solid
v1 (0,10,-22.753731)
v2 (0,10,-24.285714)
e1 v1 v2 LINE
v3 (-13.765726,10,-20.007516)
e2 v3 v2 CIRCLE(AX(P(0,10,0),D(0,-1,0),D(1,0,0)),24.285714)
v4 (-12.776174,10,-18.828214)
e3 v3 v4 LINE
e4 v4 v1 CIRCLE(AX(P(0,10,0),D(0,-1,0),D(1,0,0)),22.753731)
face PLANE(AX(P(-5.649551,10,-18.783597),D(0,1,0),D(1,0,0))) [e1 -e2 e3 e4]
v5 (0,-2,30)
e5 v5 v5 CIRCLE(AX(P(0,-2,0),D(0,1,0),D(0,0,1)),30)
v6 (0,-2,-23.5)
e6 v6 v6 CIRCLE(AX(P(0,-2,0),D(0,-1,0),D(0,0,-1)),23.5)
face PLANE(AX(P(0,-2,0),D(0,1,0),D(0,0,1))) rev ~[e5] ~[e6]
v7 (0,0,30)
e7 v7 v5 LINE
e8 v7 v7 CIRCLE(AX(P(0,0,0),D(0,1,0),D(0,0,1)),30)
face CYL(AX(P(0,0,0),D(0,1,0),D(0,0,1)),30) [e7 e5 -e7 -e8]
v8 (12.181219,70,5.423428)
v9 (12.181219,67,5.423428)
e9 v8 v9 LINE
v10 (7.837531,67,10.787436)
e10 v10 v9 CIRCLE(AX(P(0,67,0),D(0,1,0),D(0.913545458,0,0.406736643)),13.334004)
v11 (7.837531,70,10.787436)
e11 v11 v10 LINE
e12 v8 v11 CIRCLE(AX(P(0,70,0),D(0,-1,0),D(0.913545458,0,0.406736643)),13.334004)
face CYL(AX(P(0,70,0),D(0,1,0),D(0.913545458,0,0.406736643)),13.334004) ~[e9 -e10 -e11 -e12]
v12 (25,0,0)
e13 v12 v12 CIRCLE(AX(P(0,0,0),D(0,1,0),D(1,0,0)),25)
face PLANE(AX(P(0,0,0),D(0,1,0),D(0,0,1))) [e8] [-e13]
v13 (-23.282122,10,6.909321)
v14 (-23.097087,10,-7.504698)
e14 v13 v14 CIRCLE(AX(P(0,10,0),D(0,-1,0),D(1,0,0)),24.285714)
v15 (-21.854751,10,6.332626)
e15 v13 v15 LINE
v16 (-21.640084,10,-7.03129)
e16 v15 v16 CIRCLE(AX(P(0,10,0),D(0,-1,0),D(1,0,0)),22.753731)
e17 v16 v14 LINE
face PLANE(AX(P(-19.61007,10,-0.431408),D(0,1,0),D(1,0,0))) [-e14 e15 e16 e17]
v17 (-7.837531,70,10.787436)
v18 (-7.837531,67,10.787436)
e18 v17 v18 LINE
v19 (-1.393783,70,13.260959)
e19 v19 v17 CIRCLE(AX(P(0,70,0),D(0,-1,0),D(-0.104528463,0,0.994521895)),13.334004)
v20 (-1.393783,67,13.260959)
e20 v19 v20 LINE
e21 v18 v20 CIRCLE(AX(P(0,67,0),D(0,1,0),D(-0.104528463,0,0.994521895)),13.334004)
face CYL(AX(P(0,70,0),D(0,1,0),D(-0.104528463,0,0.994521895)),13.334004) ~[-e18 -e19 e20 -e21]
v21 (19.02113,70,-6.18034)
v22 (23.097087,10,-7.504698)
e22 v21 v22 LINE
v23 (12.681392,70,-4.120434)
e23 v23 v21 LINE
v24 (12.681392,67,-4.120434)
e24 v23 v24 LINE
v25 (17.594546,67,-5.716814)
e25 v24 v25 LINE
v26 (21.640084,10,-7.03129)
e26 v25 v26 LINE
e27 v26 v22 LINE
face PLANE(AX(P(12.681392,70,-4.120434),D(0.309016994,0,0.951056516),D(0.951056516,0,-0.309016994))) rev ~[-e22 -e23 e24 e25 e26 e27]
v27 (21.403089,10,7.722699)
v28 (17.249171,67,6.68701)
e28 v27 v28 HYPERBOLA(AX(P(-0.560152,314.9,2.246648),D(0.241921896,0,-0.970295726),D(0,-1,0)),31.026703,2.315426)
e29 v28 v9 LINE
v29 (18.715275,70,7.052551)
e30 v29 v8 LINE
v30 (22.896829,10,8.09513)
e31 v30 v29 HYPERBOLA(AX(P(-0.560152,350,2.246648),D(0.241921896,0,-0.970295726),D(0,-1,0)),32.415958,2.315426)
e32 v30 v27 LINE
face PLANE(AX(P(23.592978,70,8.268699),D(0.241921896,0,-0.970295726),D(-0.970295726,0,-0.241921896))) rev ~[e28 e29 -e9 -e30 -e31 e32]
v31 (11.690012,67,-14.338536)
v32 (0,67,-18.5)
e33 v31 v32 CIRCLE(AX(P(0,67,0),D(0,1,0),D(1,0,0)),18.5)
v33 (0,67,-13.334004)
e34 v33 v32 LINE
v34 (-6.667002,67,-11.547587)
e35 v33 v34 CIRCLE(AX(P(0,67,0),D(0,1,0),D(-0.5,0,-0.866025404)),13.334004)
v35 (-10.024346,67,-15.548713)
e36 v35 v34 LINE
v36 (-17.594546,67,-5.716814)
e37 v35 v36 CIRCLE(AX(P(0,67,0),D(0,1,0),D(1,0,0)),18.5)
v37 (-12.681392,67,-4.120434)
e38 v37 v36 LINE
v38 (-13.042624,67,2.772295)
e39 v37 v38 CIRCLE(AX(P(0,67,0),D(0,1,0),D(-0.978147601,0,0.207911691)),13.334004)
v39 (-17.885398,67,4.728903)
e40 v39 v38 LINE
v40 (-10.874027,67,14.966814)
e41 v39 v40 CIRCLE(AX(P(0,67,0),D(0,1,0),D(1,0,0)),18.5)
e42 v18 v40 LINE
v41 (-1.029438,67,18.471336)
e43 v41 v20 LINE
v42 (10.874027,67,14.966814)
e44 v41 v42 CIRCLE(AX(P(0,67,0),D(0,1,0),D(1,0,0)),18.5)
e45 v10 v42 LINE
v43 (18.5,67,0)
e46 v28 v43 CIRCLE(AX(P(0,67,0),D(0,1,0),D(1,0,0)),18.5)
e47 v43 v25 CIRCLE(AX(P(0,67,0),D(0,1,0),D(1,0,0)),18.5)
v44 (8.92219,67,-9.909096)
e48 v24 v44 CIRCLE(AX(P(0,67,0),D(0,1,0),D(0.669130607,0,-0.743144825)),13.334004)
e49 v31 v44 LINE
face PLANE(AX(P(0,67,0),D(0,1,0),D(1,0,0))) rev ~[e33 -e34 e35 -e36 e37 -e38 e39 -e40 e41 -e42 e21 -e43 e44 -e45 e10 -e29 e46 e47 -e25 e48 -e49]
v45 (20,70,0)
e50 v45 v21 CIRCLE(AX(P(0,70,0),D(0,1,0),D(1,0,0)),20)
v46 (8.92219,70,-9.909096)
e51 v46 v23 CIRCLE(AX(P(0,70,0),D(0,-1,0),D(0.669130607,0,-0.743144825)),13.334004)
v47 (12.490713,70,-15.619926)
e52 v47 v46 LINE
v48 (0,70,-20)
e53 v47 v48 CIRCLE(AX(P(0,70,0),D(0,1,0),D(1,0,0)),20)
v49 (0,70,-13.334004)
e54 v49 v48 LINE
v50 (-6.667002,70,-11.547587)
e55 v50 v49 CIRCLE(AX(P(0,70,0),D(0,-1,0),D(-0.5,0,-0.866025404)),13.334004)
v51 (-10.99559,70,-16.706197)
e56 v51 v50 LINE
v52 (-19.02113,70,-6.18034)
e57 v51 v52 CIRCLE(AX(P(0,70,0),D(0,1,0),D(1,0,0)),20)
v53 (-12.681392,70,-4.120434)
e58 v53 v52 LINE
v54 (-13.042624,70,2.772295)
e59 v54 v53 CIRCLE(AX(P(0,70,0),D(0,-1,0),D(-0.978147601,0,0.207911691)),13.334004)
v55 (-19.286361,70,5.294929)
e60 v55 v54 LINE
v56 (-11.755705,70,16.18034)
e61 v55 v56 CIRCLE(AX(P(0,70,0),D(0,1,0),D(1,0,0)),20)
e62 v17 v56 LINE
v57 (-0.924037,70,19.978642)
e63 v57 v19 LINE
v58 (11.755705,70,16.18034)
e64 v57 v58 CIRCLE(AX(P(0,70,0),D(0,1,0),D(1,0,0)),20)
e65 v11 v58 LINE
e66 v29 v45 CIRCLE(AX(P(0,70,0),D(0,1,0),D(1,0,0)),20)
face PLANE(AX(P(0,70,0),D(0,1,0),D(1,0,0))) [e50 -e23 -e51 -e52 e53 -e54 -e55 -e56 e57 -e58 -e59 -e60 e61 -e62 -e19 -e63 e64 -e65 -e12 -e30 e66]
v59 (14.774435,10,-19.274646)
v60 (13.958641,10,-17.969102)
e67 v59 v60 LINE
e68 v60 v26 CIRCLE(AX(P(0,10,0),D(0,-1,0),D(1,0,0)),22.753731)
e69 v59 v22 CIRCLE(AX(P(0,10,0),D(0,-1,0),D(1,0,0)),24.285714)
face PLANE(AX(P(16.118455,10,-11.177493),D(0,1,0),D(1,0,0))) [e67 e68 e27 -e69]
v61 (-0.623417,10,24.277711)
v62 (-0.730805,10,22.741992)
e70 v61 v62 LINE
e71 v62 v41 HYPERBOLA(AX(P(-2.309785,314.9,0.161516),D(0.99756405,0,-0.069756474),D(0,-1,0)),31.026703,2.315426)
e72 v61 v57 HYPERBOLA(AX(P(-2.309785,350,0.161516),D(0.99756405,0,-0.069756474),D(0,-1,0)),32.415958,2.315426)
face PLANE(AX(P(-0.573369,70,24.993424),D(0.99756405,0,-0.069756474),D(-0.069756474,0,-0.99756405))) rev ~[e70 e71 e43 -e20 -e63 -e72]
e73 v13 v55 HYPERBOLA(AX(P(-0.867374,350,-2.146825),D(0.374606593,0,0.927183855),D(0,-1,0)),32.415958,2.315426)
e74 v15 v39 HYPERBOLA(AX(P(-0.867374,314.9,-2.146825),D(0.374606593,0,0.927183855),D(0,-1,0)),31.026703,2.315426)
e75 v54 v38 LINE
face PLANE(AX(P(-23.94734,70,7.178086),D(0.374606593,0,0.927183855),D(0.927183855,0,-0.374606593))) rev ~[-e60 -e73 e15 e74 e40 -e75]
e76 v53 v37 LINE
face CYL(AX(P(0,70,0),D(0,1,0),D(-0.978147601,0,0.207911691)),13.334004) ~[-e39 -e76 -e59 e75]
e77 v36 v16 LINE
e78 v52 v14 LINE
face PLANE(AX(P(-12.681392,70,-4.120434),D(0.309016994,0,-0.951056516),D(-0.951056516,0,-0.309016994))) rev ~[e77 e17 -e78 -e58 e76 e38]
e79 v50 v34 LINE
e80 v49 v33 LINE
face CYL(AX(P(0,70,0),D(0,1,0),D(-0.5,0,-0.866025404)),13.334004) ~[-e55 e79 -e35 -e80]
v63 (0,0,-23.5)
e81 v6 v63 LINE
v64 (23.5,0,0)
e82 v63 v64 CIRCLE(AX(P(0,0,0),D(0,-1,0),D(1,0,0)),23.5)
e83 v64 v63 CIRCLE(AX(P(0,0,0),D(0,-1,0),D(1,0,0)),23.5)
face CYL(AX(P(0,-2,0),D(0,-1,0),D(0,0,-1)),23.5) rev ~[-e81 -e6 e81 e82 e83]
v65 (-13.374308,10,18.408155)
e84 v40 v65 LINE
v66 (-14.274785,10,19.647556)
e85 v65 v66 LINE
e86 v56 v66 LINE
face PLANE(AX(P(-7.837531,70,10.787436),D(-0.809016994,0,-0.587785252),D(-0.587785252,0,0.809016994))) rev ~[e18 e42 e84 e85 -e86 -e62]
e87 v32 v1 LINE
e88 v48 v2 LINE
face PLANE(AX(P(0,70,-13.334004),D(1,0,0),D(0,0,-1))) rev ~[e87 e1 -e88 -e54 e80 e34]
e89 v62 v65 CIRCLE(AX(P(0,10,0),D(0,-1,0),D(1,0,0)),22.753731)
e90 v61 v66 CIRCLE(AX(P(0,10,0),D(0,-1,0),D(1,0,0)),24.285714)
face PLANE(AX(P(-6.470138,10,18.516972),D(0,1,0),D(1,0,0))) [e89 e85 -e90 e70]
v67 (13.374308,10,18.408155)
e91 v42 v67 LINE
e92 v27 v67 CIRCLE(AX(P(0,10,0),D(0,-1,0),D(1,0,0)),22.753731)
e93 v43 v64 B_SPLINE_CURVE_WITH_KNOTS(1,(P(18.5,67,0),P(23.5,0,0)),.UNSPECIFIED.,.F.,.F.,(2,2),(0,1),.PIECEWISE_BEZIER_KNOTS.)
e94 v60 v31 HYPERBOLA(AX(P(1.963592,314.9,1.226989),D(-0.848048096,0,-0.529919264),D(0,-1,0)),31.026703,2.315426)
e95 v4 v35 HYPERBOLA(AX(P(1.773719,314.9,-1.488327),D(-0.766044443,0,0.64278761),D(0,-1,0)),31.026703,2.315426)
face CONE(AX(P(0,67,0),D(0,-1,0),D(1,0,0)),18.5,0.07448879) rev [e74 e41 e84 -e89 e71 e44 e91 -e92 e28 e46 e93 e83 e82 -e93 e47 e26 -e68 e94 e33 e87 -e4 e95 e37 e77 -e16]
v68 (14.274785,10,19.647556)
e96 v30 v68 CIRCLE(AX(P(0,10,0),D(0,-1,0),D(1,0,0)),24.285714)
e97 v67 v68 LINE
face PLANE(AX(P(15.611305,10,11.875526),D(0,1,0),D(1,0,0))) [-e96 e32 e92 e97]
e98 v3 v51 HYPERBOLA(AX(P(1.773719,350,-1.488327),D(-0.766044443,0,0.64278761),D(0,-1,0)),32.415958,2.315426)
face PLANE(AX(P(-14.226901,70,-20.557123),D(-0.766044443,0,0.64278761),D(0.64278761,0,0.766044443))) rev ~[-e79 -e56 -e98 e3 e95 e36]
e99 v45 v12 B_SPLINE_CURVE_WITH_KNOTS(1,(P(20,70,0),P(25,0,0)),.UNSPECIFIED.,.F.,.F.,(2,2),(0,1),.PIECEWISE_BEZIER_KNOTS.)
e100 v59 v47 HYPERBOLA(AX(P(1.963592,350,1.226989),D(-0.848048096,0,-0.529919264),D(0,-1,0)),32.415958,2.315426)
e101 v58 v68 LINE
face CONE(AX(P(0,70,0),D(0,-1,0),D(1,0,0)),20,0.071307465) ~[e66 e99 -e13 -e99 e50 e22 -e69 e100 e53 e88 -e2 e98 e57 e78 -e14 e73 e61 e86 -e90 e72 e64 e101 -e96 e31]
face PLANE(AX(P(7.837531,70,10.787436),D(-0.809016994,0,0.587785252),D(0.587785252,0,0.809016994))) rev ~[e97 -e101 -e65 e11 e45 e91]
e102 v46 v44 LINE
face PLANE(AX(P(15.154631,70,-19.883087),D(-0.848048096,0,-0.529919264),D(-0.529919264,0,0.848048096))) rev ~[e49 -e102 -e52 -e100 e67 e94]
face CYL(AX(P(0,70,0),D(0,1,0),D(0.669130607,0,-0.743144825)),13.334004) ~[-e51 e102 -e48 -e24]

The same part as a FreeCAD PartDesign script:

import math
import FreeCAD as App
import Part
import Sketcher
from FreeCAD import Vector
Q = App.Units.Quantity

doc = App.newDocument("Part")
body = doc.addObject("PartDesign::Body", "Body")

sketch1 = body.newObject("Sketcher::SketchObject", "Sketch")
sketch1.AttachmentSupport = (doc.getObject("XZ_Plane"), [""])
sketch1.MapMode = "FlatFace"
sketch1.AttachmentOffset = App.Placement(Vector(0, 0, -70), App.Rotation())
sketch1.addGeometry(Part.Circle(Vector(0, 0, 0), Vector(0, 0, 1), 20), False)
sketch1.addConstraint(Sketcher.Constraint("Coincident", 0, 3, -1, 1))
sketch1.addConstraint(Sketcher.Constraint("Diameter", 0, 40.0))

sketch2 = body.newObject("Sketcher::SketchObject", "Sketch001")
sketch2.AttachmentSupport = (doc.getObject("XZ_Plane"), [""])
sketch2.MapMode = "FlatFace"
sketch2.addGeometry(Part.Circle(Vector(0, 0, 0), Vector(0, 0, 1), 25), False)
sketch2.addConstraint(Sketcher.Constraint("Coincident", 0, 3, -1, 1))
sketch2.addConstraint(Sketcher.Constraint("Diameter", 0, 50.0))

additiveloft = body.newObject("PartDesign::AdditiveLoft", "AdditiveLoft")
additiveloft.Profile = sketch1
additiveloft.Sections = [sketch2]

sketch3 = body.newObject("Sketcher::SketchObject", "Sketch002")
sketch3.AttachmentSupport = (doc.getObject("XZ_Plane"), [""])
sketch3.MapMode = "FlatFace"
sketch3.AttachmentOffset = App.Placement(Vector(0, 0, -67), App.Rotation())
sketch3.addGeometry(Part.Circle(Vector(0, 0, 0), Vector(0, 0, 1), 18.5), False)
sketch3.addConstraint(Sketcher.Constraint("Coincident", 0, 3, -1, 1))
sketch3.addConstraint(Sketcher.Constraint("Diameter", 0, 37.0))

sketch4 = body.newObject("Sketcher::SketchObject", "Sketch003")
sketch4.AttachmentSupport = (doc.getObject("XZ_Plane"), [""])
sketch4.MapMode = "FlatFace"
sketch4.addGeometry(Part.Circle(Vector(0, 0, 0), Vector(0, 0, 1), 23.5), False)
sketch4.addConstraint(Sketcher.Constraint("Coincident", 0, 3, -1, 1))
sketch4.addConstraint(Sketcher.Constraint("Diameter", 0, 47.0))

subtractiveloft = body.newObject("PartDesign::SubtractiveLoft", "SubtractiveLoft")
subtractiveloft.Profile = sketch3
subtractiveloft.Sections = [sketch4]

sketch5 = body.newObject("Sketcher::SketchObject", "Sketch004")
sketch5.AttachmentSupport = (doc.getObject("XZ_Plane"), [""])
sketch5.MapMode = "FlatFace"
sketch5.addGeometry(Part.Circle(Vector(0, 0, 0), Vector(0, 0, 1), 30), False)
sketch5.addConstraint(Sketcher.Constraint("Coincident", 0, 3, -1, 1))
sketch5.addConstraint(Sketcher.Constraint("Diameter", 0, 60.0))
pad1 = body.newObject("PartDesign::Pad", "Pad")
pad1.Profile = sketch5
pad1.Length = 2

sketch6 = body.newObject("Sketcher::SketchObject", "Sketch005")
sketch6.AttachmentSupport = (doc.getObject("XZ_Plane"), [""])
sketch6.MapMode = "FlatFace"
sketch6.AttachmentOffset = App.Placement(Vector(0, 0, 2), App.Rotation())
sketch6.addGeometry(Part.Circle(Vector(0, 0, 0), Vector(0, 0, 1), 23.5), False)
sketch6.addConstraint(Sketcher.Constraint("Coincident", 0, 3, -1, 1))
sketch6.addConstraint(Sketcher.Constraint("Diameter", 0, 47.0))
pocket1 = body.newObject("PartDesign::Pocket", "Pocket")
pocket1.Profile = sketch6
pocket1.Length = 2

sketch7 = body.newObject("Sketcher::SketchObject", "Sketch006")
sketch7.AttachmentSupport = (doc.getObject("XZ_Plane"), [""])
sketch7.MapMode = "FlatFace"
sketch7.AttachmentOffset = App.Placement(Vector(0, 0, -70), App.Rotation())
sketch7.addGeometry(Part.LineSegment(Vector(0, -13.334004, 0), Vector(0, -25, 0)), False)
sketch7.addGeometry(Part.ArcOfCircle(Part.Circle(Vector(0, 0, 0), Vector(0, 0, 1), 25), math.radians(-124.68582), math.radians(-90)), False)
sketch7.addGeometry(Part.LineSegment(Vector(-14.226901, -20.557123, 0), Vector(-6.667002, -11.547587, 0)), False)
sketch7.addGeometry(Part.ArcOfCircle(Part.Circle(Vector(0, 0, 0), Vector(0, 0, 1), 13.334004), math.radians(-120), math.radians(-90)), False)
sketch7.addGeometry(Part.LineSegment(Vector(12.681392, -4.120434, 0), Vector(23.776413, -7.725425, 0)), False)
sketch7.addGeometry(Part.ArcOfCircle(Part.Circle(Vector(0, 0, 0), Vector(0, 0, 1), 25), math.radians(-52.68582), math.radians(-18)), False)
sketch7.addGeometry(Part.LineSegment(Vector(15.154631, -19.883087, 0), Vector(8.92219, -9.909096, 0)), False)
sketch7.addGeometry(Part.ArcOfCircle(Part.Circle(Vector(0, 0, 0), Vector(0, 0, 1), 13.334004), math.radians(-48), math.radians(-18)), False)
sketch7.addGeometry(Part.LineSegment(Vector(7.837531, 10.787436, 0), Vector(14.694631, 20.225425, 0)), False)
sketch7.addGeometry(Part.ArcOfCircle(Part.Circle(Vector(0, 0, 0), Vector(0, 0, 1), 25), math.radians(19.31418), math.radians(54)), False)
sketch7.addGeometry(Part.LineSegment(Vector(23.592978, 8.268699, 0), Vector(12.181219, 5.423428, 0)), False)
sketch7.addGeometry(Part.ArcOfCircle(Part.Circle(Vector(0, 0, 0), Vector(0, 0, 1), 13.334004), math.radians(24), math.radians(54)), False)
sketch7.addGeometry(Part.LineSegment(Vector(-7.837531, 10.787436, 0), Vector(-14.694631, 20.225425, 0)), False)
sketch7.addGeometry(Part.ArcOfCircle(Part.Circle(Vector(0, 0, 0), Vector(0, 0, 1), 25), math.radians(91.31418), math.radians(126)), False)
sketch7.addGeometry(Part.LineSegment(Vector(-0.573369, 24.993424, 0), Vector(-1.393783, 13.260959, 0)), False)
sketch7.addGeometry(Part.ArcOfCircle(Part.Circle(Vector(0, 0, 0), Vector(0, 0, 1), 13.334004), math.radians(96), math.radians(126)), False)
sketch7.addGeometry(Part.LineSegment(Vector(-12.681392, -4.120434, 0), Vector(-23.776413, -7.725425, 0)), False)
sketch7.addGeometry(Part.ArcOfCircle(Part.Circle(Vector(0, 0, 0), Vector(0, 0, 1), 25), math.radians(163.31418), math.radians(198)), False)
sketch7.addGeometry(Part.LineSegment(Vector(-23.94734, 7.178086, 0), Vector(-13.042624, 2.772295, 0)), False)
sketch7.addGeometry(Part.ArcOfCircle(Part.Circle(Vector(0, 0, 0), Vector(0, 0, 1), 13.334004), math.radians(168), math.radians(198)), False)
sketch7.addConstraint(Sketcher.Constraint("Coincident", 0, 2, 1, 2))
sketch7.addConstraint(Sketcher.Constraint("Coincident", 1, 1, 2, 1))
sketch7.addConstraint(Sketcher.Constraint("Coincident", 2, 2, 3, 1))
sketch7.addConstraint(Sketcher.Constraint("Coincident", 3, 2, 0, 1))
sketch7.addConstraint(Sketcher.Constraint("Coincident", 4, 2, 5, 2))
sketch7.addConstraint(Sketcher.Constraint("Coincident", 5, 1, 6, 1))
sketch7.addConstraint(Sketcher.Constraint("Coincident", 6, 2, 7, 1))
sketch7.addConstraint(Sketcher.Constraint("Coincident", 7, 2, 4, 1))
sketch7.addConstraint(Sketcher.Constraint("Coincident", 8, 2, 9, 2))
sketch7.addConstraint(Sketcher.Constraint("Coincident", 9, 1, 10, 1))
sketch7.addConstraint(Sketcher.Constraint("Coincident", 10, 2, 11, 1))
sketch7.addConstraint(Sketcher.Constraint("Coincident", 11, 2, 8, 1))
sketch7.addConstraint(Sketcher.Constraint("Coincident", 12, 2, 13, 2))
sketch7.addConstraint(Sketcher.Constraint("Coincident", 13, 1, 14, 1))
sketch7.addConstraint(Sketcher.Constraint("Coincident", 14, 2, 15, 1))
sketch7.addConstraint(Sketcher.Constraint("Coincident", 15, 2, 12, 1))
sketch7.addConstraint(Sketcher.Constraint("Coincident", 16, 2, 17, 2))
sketch7.addConstraint(Sketcher.Constraint("Coincident", 17, 1, 18, 1))
sketch7.addConstraint(Sketcher.Constraint("Coincident", 18, 2, 19, 1))
sketch7.addConstraint(Sketcher.Constraint("Coincident", 19, 2, 16, 1))
sketch7.addConstraint(Sketcher.Constraint("Vertical", 0))
sketch7.addConstraint(Sketcher.Constraint("Coincident", 1, 3, -1, 1))
sketch7.addConstraint(Sketcher.Constraint("Coincident", 3, 3, -1, 1))
sketch7.addConstraint(Sketcher.Constraint("Coincident", 5, 3, -1, 1))
sketch7.addConstraint(Sketcher.Constraint("Coincident", 7, 3, -1, 1))
sketch7.addConstraint(Sketcher.Constraint("Coincident", 9, 3, -1, 1))
sketch7.addConstraint(Sketcher.Constraint("Coincident", 11, 3, -1, 1))
sketch7.addConstraint(Sketcher.Constraint("Coincident", 13, 3, -1, 1))
sketch7.addConstraint(Sketcher.Constraint("Coincident", 15, 3, -1, 1))
sketch7.addConstraint(Sketcher.Constraint("Coincident", 17, 3, -1, 1))
sketch7.addConstraint(Sketcher.Constraint("Coincident", 19, 3, -1, 1))
sketch7.addConstraint(Sketcher.Constraint("Equal", 1, 5))
sketch7.addConstraint(Sketcher.Constraint("Equal", 3, 7))
sketch7.addConstraint(Sketcher.Constraint("Equal", 5, 9))
sketch7.addConstraint(Sketcher.Constraint("Equal", 7, 11))
sketch7.addConstraint(Sketcher.Constraint("Equal", 9, 13))
sketch7.addConstraint(Sketcher.Constraint("Equal", 11, 15))
sketch7.addConstraint(Sketcher.Constraint("Equal", 13, 17))
sketch7.addConstraint(Sketcher.Constraint("Equal", 15, 19))
sketch7.addConstraint(Sketcher.Constraint("PointOnObject", 0, 2, -2))
sketch7.addConstraint(Sketcher.Constraint("Horizontal", 8, 2, 12, 2))
sketch7.addConstraint(Sketcher.Constraint("Horizontal", 11, 2, 15, 2))
sketch7.addConstraint(Sketcher.Constraint("Horizontal", 4, 2, 16, 2))
sketch7.addConstraint(Sketcher.Constraint("Horizontal", 7, 2, 19, 2))
sketch7.addConstraint(Sketcher.Constraint("Equal", 2, 6))
sketch7.addConstraint(Sketcher.Constraint("Equal", 6, 10))
sketch7.addConstraint(Sketcher.Constraint("Equal", 10, 14))
sketch7.addConstraint(Sketcher.Constraint("Equal", 14, 18))
sketch7.addConstraint(Sketcher.Constraint("Radius", 1, 25.0))
sketch7.addConstraint(Sketcher.Constraint("Angle", 2, Q("50 deg")))
sketch7.addConstraint(Sketcher.Constraint("Angle", 4, Q("-18 deg")))
sketch7.addConstraint(Sketcher.Constraint("Angle", 6, Q("122 deg")))
sketch7.addConstraint(Sketcher.Constraint("Angle", 8, Q("54 deg")))
sketch7.addConstraint(Sketcher.Constraint("Angle", 10, Q("-166 deg")))
sketch7.addConstraint(Sketcher.Constraint("Angle", 14, Q("-94 deg")))
sketch7.addConstraint(Sketcher.Constraint("Angle", 18, Q("-22 deg")))
sketch7.addConstraint(Sketcher.Constraint("Radius", 3, 13.334004))
sketch7.addConstraint(Sketcher.Constraint("DistanceY", 12, 2, 13, 1, 4.767999))
sketch7.addConstraint(Sketcher.Constraint("DistanceX", 13, 1, 8, 2, 15.268))
sketch7.addConstraint(Sketcher.Constraint("DistanceX", 6, 2, 7, 2, 3.759201))
pocket2 = body.newObject("PartDesign::Pocket", "Pocket001")
pocket2.Profile = sketch7
pocket2.Length = 60
pocket2.Reversed = True

doc.recompute()
